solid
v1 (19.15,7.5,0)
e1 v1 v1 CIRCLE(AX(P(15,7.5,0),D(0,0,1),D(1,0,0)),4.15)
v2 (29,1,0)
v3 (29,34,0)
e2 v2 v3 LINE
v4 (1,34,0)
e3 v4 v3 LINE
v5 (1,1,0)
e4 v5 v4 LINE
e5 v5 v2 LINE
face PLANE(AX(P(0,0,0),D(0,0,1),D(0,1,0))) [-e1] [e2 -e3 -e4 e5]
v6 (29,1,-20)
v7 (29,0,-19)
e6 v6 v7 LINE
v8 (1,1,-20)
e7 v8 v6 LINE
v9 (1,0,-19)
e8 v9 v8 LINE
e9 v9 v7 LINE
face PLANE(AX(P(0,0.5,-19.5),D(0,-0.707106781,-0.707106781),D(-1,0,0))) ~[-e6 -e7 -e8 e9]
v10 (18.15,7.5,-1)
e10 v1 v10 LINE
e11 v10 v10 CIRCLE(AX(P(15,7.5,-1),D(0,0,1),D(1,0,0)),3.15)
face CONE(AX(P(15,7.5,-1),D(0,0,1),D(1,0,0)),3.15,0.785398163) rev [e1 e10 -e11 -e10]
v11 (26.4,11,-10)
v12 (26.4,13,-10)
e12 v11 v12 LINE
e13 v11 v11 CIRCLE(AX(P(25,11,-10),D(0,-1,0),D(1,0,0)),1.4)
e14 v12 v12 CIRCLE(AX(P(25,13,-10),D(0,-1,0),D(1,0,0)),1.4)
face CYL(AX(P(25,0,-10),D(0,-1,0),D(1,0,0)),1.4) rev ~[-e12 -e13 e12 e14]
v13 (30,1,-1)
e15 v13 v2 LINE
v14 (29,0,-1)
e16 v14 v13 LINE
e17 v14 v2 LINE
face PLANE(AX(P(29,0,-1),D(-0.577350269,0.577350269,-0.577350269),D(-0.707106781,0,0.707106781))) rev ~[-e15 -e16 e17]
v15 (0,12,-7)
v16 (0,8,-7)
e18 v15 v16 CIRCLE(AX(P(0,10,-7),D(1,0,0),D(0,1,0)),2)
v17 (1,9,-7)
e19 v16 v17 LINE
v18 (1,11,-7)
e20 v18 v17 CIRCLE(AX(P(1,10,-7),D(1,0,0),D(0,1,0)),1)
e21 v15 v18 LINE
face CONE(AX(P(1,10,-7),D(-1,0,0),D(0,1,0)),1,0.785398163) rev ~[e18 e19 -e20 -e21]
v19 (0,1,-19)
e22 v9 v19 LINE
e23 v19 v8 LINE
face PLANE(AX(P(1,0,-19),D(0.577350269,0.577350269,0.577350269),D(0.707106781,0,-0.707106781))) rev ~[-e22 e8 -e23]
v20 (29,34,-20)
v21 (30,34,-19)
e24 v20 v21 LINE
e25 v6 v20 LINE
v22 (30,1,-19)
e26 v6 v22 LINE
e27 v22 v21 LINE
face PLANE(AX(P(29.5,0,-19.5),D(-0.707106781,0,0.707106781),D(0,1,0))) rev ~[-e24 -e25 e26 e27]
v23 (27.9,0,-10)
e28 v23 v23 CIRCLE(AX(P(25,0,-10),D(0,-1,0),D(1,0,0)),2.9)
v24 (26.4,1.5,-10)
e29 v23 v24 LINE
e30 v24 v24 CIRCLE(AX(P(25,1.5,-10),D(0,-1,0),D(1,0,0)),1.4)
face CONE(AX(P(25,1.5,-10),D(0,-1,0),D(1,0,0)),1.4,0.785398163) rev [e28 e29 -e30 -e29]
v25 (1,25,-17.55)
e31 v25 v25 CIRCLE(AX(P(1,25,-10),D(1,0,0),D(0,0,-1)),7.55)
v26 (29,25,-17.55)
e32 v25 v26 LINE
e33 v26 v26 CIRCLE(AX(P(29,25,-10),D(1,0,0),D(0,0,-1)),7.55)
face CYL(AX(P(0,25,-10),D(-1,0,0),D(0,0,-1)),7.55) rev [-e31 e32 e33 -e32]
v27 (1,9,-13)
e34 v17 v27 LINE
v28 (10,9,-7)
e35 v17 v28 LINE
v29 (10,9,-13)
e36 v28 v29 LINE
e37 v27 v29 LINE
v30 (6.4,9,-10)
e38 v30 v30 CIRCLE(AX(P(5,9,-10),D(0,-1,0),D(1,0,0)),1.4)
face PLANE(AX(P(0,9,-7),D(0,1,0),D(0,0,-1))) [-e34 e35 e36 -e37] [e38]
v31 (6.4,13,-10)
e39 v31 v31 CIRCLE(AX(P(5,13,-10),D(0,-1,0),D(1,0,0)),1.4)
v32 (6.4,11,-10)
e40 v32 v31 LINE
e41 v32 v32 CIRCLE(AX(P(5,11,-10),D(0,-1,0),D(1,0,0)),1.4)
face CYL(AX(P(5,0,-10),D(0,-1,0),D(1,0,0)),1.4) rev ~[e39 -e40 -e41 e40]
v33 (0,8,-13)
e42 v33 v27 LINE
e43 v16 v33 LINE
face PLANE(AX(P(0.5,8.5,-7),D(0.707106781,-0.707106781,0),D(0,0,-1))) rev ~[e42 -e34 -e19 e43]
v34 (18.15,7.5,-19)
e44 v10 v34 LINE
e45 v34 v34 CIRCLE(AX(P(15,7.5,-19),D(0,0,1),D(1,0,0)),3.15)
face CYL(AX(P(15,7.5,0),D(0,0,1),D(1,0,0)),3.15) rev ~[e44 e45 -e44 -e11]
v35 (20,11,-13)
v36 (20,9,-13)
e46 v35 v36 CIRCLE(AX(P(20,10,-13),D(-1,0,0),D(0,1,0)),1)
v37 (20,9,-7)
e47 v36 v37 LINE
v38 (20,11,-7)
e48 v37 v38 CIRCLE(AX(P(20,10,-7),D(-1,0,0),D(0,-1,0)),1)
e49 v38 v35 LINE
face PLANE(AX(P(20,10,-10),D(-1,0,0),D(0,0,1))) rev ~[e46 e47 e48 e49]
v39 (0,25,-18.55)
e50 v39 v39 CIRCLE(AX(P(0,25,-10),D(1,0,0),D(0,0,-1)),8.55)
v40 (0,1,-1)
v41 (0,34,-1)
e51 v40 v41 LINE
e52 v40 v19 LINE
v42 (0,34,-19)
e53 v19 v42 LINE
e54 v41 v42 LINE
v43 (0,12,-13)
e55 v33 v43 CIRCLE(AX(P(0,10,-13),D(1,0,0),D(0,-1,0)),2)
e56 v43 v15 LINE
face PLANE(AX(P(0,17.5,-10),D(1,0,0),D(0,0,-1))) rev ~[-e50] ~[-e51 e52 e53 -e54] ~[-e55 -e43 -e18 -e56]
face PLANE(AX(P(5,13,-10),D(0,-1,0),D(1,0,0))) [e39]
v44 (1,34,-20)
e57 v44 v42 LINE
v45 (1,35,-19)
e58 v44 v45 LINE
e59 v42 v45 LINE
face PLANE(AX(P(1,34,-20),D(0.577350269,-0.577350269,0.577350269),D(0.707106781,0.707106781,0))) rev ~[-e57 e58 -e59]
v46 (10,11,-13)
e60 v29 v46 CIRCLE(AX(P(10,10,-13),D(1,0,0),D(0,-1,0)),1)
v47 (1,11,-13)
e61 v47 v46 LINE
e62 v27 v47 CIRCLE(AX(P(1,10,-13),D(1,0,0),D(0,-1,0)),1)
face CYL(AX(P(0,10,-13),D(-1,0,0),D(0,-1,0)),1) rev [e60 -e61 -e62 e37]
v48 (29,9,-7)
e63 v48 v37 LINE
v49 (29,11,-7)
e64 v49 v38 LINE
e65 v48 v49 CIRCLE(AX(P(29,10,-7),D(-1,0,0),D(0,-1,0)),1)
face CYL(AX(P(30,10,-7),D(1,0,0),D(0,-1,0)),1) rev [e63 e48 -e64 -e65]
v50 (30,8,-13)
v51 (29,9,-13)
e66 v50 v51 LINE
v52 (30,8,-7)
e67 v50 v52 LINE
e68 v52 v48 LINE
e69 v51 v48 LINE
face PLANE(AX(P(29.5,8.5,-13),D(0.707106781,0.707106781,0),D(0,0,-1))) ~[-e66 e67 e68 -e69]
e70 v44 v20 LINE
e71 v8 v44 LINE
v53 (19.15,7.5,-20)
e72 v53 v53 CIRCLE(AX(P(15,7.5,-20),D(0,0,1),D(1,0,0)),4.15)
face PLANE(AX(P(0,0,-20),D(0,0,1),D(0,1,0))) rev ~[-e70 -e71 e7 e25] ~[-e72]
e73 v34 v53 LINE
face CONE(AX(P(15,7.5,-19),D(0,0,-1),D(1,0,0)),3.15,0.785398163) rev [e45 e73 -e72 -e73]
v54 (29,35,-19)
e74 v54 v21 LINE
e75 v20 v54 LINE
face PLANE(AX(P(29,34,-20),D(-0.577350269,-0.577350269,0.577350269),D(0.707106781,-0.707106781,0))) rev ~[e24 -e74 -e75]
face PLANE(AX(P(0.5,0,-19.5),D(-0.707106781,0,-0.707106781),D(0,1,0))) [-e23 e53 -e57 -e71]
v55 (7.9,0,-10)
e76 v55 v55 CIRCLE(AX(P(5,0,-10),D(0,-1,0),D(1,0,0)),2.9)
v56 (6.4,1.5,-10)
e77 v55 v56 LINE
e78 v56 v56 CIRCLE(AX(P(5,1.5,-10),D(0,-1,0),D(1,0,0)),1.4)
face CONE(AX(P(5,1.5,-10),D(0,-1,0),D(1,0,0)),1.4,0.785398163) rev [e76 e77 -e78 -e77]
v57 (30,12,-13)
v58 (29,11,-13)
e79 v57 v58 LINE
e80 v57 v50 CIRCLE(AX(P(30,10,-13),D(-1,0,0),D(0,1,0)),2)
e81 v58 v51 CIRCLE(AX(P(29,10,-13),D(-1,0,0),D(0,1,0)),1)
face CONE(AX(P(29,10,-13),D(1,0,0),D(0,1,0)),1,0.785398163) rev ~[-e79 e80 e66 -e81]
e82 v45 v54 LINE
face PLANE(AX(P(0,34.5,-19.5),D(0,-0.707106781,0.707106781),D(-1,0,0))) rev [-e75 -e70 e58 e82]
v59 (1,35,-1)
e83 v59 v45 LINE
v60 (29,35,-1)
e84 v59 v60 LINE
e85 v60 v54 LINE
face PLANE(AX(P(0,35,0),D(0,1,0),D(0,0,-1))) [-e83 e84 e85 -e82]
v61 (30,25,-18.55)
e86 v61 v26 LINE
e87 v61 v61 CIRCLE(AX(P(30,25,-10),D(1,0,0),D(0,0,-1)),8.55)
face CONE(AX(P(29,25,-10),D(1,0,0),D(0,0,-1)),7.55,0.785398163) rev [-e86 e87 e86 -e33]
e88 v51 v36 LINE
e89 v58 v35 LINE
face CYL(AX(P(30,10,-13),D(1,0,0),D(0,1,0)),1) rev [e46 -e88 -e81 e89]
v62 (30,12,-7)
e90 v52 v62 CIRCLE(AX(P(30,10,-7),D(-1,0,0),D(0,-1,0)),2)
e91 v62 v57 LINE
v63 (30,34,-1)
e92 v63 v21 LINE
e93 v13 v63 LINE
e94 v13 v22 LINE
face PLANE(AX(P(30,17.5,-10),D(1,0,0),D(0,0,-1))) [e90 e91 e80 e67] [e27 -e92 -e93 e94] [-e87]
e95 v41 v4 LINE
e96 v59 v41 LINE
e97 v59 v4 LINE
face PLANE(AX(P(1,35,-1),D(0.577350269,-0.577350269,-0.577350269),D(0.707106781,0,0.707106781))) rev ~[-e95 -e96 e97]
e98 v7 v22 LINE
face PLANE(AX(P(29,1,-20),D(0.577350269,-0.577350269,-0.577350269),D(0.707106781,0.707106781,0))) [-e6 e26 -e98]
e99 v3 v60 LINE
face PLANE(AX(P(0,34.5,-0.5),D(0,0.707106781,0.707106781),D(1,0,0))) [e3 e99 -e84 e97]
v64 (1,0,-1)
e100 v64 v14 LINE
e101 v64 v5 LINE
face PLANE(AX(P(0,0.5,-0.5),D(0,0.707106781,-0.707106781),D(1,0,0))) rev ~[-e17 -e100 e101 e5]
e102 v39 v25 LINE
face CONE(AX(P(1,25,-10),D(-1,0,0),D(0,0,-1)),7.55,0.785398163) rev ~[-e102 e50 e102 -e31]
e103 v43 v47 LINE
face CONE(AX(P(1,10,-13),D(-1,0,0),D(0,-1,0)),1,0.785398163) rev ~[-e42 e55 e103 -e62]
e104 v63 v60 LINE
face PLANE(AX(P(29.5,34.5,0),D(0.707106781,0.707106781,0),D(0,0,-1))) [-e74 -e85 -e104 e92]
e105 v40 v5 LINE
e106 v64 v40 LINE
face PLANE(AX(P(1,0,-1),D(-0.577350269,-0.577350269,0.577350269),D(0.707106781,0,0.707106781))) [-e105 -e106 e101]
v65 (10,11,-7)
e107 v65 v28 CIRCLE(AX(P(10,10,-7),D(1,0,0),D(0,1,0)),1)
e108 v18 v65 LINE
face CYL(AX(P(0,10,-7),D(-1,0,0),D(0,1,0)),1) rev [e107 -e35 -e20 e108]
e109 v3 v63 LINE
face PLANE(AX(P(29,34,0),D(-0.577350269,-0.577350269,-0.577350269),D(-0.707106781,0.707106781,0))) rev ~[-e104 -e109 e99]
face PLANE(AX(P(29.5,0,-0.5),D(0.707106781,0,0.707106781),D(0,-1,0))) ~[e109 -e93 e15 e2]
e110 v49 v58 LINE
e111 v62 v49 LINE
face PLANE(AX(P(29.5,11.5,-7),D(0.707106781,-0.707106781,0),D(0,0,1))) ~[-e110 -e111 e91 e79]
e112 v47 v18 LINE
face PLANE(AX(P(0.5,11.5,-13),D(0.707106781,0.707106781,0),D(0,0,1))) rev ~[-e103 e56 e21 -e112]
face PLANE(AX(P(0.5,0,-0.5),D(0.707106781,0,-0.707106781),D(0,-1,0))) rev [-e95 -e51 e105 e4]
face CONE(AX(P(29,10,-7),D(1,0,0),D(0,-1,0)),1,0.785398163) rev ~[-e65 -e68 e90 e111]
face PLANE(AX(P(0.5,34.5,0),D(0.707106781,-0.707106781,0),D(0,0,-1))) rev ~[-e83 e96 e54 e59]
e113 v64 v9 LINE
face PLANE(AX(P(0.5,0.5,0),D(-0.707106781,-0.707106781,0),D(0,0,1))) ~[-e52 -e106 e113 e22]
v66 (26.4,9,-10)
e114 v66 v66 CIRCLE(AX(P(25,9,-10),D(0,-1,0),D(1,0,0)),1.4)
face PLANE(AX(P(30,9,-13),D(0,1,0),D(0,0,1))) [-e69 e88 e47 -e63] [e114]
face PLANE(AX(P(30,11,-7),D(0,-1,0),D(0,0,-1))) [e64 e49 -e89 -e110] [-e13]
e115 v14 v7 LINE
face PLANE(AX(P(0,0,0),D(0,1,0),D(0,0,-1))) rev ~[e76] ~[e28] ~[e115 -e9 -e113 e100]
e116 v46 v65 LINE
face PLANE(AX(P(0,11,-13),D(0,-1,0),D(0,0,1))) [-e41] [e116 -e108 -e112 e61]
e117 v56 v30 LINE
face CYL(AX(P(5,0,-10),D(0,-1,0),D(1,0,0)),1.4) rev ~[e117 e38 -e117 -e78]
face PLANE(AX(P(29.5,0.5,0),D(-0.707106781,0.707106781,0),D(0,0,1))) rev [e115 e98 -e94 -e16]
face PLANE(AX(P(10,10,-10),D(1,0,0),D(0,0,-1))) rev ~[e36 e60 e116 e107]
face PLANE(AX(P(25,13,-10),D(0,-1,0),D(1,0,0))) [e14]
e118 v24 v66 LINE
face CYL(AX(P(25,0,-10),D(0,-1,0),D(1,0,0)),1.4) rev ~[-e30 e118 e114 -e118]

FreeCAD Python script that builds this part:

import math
import FreeCAD as App
import Part
import Sketcher
from FreeCAD import Vector
Q = App.Units.Quantity


def edges_at(feature, points):
    """Names of the edges that pass closest to the given points."""
    edges = feature.Shape.Edges
    near = lambda p: min(range(len(edges)), key=lambda i: edges[i].distToShape(Part.Vertex(*p))[0])
    return sorted({f"Edge{near(p) + 1}" for p in points})

doc = App.newDocument("Part")
body = doc.addObject("PartDesign::Body", "Body")

# Sketch on YZ plane
sketch1 = doc.addObject("Sketcher::SketchObject", "Sketch")
body.addObject(sketch1)
sketch1.AttachmentSupport = (doc.YZ_Plane, [""])
sketch1.MapMode = "FlatFace"
sketch1.addGeometry([
    Part.LineSegment(Vector(35, 0, 0), Vector(0, 0, 0)),  # 0
    Part.LineSegment(Vector(0, 0, 0), Vector(0, -20, 0)),  # 1
    Part.LineSegment(Vector(0, -20, 0), Vector(35, -20, 0)),  # 2
    Part.LineSegment(Vector(35, -20, 0), Vector(35, 0, 0)),  # 3
    Part.Circle(Vector(25, -10, 0), Vector(0, 0, 1), 8),  # 4
], False)
sketch1.addConstraint([
    Sketcher.Constraint("Coincident", 0, 2, 1, 1),
    Sketcher.Constraint("Coincident", 1, 2, 2, 1),
    Sketcher.Constraint("Coincident", 2, 2, 3, 1),
    Sketcher.Constraint("Coincident", 3, 2, 0, 1),
    Sketcher.Constraint("Horizontal", 0),
    Sketcher.Constraint("Vertical", 1),
    Sketcher.Constraint("Horizontal", 2),
    Sketcher.Constraint("Vertical", 3),
    Sketcher.Constraint("Coincident", 0, 2, -1, 1),
    Sketcher.Constraint("Diameter", 4, Q("15.1 mm")),
    Sketcher.Constraint("DistanceX", 0, 2, 0, 1, Q("35 mm")),
    Sketcher.Constraint("DistanceY", 1, 2, 1, 1, Q("20 mm")),
    Sketcher.Constraint("DistanceX", -1, 1, 4, 3, Q("25 mm")),
    Sketcher.Constraint("DistanceY", 4, 3, -1, 1, Q("10 mm")),
])
pad1 = doc.addObject("PartDesign::Pad", "Pad")
body.addObject(pad1)
pad1.Profile = sketch1
pad1.Length = 30

# Sketch on XY plane
sketch2 = doc.addObject("Sketcher::SketchObject", "Sketch001")
body.addObject(sketch2)
sketch2.AttachmentSupport = (doc.XY_Plane, [""])
sketch2.MapMode = "FlatFace"
sketch2.addGeometry(Part.Circle(Vector(15, 7.5, 0), Vector(0, 0, 1), 3.1), False)
sketch2.addConstraint([
    Sketcher.Constraint("Diameter", 0, Q("6.3 mm")),
    Sketcher.Constraint("DistanceX", -1, 1, 0, 3, Q("15 mm")),
    Sketcher.Constraint("DistanceY", -1, 1, 0, 3, Q("7.5 mm")),
])
pocket1 = doc.addObject("PartDesign::Pocket", "Pocket")
body.addObject(pocket1)
pocket1.Profile = sketch2
pocket1.Type = "UpToFirst"

# Sketch on YZ plane
sketch3 = doc.addObject("Sketcher::SketchObject", "Sketch002")
body.addObject(sketch3)
sketch3.AttachmentSupport = (doc.YZ_Plane, [""])
sketch3.MapMode = "FlatFace"
sketch3.AttachmentOffset = App.Placement(Vector(0, 0, 30), App.Rotation())
sketch3.addGeometry([
    Part.LineSegment(Vector(11, -13, 0), Vector(11, -7, 0)),
    Part.ArcOfCircle(Part.Circle(Vector(10, -7, 0), Vector(0, 0, 1), 1), math.radians(0), math.radians(180)),
    Part.LineSegment(Vector(9, -7, 0), Vector(9, -13, 0)),
    Part.ArcOfCircle(Part.Circle(Vector(10, -13, 0), Vector(0, 0, 1), 1), math.radians(180), math.radians(360)),
], False)
sketch3.addConstraint([
    Sketcher.Constraint("Tangent", 0, 2, 1, 1),
    Sketcher.Constraint("Tangent", 1, 2, 2, 1),
    Sketcher.Constraint("Tangent", 2, 2, 3, 1),
    Sketcher.Constraint("Tangent", 3, 2, 0, 1),
    Sketcher.Constraint("Vertical", 0),
    Sketcher.Constraint("Vertical", 2),
    Sketcher.Constraint("Radius", 1, Q("1 mm")),
    Sketcher.Constraint("DistanceY", 0, 1, 0, 2, Q("6 mm")),
    Sketcher.Constraint("DistanceX", -1, 1, 1, 3, Q("10 mm")),
    Sketcher.Constraint("DistanceY", 1, 3, -1, 1, Q("7 mm")),
])
pocket2 = doc.addObject("PartDesign::Pocket", "Pocket001")
body.addObject(pocket2)
pocket2.Profile = sketch3
pocket2.Length = 10

# Sketch on YZ plane
sketch4 = doc.addObject("Sketcher::SketchObject", "Sketch003")
body.addObject(sketch4)
sketch4.AttachmentSupport = (doc.YZ_Plane, [""])
sketch4.MapMode = "FlatFace"
sketch4.addGeometry([
    Part.LineSegment(Vector(9, -13, 0), Vector(9, -7, 0)),
    Part.ArcOfCircle(Part.Circle(Vector(10, -7, 0), Vector(0, 0, 1), 1), math.radians(0), math.radians(180)),
    Part.LineSegment(Vector(11, -7, 0), Vector(11, -13, 0)),
    Part.ArcOfCircle(Part.Circle(Vector(10, -13, 0), Vector(0, 0, 1), 1), math.radians(180), math.radians(360)),
], False)
sketch4.addConstraint([
    Sketcher.Constraint("Tangent", 0, 2, 1, 2),
    Sketcher.Constraint("Tangent", 1, 1, 2, 1),
    Sketcher.Constraint("Tangent", 2, 2, 3, 2),
    Sketcher.Constraint("Tangent", 3, 1, 0, 1),
    Sketcher.Constraint("Vertical", 0),
    Sketcher.Constraint("Vertical", 2),
    Sketcher.Constraint("Radius", 1, Q("1 mm")),
    Sketcher.Constraint("DistanceY", 0, 1, 0, 2, Q("6 mm")),
    Sketcher.Constraint("DistanceX", -1, 1, 1, 3, Q("10 mm")),
    Sketcher.Constraint("DistanceY", 1, 3, -1, 1, Q("7 mm")),
])
pocket3 = doc.addObject("PartDesign::Pocket", "Pocket002")
body.addObject(pocket3)
pocket3.Profile = sketch4
pocket3.Length = 10
pocket3.Reversed = True

# Sketch on XZ plane
sketch5 = doc.addObject("Sketcher::SketchObject", "Sketch004")
body.addObject(sketch5)
sketch5.AttachmentSupport = (doc.XZ_Plane, [""])
sketch5.MapMode = "FlatFace"
sketch5.addGeometry([
    Part.Circle(Vector(5, -10, 0), Vector(0, 0, 1), 1.4),
    Part.Circle(Vector(25, -10, 0), Vector(0, 0, 1), 1.4),
], False)
sketch5.addConstraint([
    Sketcher.Constraint("Equal", 0, 1),
    Sketcher.Constraint("Horizontal", 0, 3, 1, 3),
    Sketcher.Constraint("Diameter", 0, Q("2.8 mm")),
    Sketcher.Constraint("DistanceX", -1, 1, 0, 3, Q("5 mm")),
    Sketcher.Constraint("DistanceY", 0, 3, -1, 1, Q("10 mm")),
    Sketcher.Constraint("DistanceX", -1, 1, 1, 3, Q("25 mm")),
])
pocket4 = doc.addObject("PartDesign::Pocket", "Pocket003")
body.addObject(pocket4)
pocket4.Profile = sketch5
pocket4.Length = 13
doc.recompute()

chamfer = doc.addObject("PartDesign::Chamfer", "Chamfer")
body.addObject(chamfer)
chamfer.Base = (pocket4, edges_at(pocket4, [
    (0, 25, -2.45),
    (30, 25, -2.45),
    (30, 35, -10),
    (30, 17.5, 0),
    (11.85, 7.5, 0),
    (11.85, 7.5, -20),
    (30, 10, -6),
    (30, 9, -10),
    (30, 10, -14),
    (30, 11, -10),
    (0, 10, -6),
    (0, 11, -10),
    (0, 10, -14),
    (0, 9, -10),
    (30, 0, -10),
    (0, 17.5, 0),
    (0, 35, -10),
    (0, 17.5, -20),
    (0, 0, -10),
    (15, 0, 0),
    (15, 35, 0),
    (15, 35, -20),
    (15, 0, -20),
    (30, 17.5, -20),
]))
chamfer.Size = 1
doc.recompute()

chamfer2 = doc.addObject("PartDesign::Chamfer", "Chamfer001")
body.addObject(chamfer2)
chamfer2.Base = (chamfer, edges_at(chamfer, [(3.6, 0, -10), (23.6, 0, -10)]))
chamfer2.Size = 1.5

doc.recompute()
